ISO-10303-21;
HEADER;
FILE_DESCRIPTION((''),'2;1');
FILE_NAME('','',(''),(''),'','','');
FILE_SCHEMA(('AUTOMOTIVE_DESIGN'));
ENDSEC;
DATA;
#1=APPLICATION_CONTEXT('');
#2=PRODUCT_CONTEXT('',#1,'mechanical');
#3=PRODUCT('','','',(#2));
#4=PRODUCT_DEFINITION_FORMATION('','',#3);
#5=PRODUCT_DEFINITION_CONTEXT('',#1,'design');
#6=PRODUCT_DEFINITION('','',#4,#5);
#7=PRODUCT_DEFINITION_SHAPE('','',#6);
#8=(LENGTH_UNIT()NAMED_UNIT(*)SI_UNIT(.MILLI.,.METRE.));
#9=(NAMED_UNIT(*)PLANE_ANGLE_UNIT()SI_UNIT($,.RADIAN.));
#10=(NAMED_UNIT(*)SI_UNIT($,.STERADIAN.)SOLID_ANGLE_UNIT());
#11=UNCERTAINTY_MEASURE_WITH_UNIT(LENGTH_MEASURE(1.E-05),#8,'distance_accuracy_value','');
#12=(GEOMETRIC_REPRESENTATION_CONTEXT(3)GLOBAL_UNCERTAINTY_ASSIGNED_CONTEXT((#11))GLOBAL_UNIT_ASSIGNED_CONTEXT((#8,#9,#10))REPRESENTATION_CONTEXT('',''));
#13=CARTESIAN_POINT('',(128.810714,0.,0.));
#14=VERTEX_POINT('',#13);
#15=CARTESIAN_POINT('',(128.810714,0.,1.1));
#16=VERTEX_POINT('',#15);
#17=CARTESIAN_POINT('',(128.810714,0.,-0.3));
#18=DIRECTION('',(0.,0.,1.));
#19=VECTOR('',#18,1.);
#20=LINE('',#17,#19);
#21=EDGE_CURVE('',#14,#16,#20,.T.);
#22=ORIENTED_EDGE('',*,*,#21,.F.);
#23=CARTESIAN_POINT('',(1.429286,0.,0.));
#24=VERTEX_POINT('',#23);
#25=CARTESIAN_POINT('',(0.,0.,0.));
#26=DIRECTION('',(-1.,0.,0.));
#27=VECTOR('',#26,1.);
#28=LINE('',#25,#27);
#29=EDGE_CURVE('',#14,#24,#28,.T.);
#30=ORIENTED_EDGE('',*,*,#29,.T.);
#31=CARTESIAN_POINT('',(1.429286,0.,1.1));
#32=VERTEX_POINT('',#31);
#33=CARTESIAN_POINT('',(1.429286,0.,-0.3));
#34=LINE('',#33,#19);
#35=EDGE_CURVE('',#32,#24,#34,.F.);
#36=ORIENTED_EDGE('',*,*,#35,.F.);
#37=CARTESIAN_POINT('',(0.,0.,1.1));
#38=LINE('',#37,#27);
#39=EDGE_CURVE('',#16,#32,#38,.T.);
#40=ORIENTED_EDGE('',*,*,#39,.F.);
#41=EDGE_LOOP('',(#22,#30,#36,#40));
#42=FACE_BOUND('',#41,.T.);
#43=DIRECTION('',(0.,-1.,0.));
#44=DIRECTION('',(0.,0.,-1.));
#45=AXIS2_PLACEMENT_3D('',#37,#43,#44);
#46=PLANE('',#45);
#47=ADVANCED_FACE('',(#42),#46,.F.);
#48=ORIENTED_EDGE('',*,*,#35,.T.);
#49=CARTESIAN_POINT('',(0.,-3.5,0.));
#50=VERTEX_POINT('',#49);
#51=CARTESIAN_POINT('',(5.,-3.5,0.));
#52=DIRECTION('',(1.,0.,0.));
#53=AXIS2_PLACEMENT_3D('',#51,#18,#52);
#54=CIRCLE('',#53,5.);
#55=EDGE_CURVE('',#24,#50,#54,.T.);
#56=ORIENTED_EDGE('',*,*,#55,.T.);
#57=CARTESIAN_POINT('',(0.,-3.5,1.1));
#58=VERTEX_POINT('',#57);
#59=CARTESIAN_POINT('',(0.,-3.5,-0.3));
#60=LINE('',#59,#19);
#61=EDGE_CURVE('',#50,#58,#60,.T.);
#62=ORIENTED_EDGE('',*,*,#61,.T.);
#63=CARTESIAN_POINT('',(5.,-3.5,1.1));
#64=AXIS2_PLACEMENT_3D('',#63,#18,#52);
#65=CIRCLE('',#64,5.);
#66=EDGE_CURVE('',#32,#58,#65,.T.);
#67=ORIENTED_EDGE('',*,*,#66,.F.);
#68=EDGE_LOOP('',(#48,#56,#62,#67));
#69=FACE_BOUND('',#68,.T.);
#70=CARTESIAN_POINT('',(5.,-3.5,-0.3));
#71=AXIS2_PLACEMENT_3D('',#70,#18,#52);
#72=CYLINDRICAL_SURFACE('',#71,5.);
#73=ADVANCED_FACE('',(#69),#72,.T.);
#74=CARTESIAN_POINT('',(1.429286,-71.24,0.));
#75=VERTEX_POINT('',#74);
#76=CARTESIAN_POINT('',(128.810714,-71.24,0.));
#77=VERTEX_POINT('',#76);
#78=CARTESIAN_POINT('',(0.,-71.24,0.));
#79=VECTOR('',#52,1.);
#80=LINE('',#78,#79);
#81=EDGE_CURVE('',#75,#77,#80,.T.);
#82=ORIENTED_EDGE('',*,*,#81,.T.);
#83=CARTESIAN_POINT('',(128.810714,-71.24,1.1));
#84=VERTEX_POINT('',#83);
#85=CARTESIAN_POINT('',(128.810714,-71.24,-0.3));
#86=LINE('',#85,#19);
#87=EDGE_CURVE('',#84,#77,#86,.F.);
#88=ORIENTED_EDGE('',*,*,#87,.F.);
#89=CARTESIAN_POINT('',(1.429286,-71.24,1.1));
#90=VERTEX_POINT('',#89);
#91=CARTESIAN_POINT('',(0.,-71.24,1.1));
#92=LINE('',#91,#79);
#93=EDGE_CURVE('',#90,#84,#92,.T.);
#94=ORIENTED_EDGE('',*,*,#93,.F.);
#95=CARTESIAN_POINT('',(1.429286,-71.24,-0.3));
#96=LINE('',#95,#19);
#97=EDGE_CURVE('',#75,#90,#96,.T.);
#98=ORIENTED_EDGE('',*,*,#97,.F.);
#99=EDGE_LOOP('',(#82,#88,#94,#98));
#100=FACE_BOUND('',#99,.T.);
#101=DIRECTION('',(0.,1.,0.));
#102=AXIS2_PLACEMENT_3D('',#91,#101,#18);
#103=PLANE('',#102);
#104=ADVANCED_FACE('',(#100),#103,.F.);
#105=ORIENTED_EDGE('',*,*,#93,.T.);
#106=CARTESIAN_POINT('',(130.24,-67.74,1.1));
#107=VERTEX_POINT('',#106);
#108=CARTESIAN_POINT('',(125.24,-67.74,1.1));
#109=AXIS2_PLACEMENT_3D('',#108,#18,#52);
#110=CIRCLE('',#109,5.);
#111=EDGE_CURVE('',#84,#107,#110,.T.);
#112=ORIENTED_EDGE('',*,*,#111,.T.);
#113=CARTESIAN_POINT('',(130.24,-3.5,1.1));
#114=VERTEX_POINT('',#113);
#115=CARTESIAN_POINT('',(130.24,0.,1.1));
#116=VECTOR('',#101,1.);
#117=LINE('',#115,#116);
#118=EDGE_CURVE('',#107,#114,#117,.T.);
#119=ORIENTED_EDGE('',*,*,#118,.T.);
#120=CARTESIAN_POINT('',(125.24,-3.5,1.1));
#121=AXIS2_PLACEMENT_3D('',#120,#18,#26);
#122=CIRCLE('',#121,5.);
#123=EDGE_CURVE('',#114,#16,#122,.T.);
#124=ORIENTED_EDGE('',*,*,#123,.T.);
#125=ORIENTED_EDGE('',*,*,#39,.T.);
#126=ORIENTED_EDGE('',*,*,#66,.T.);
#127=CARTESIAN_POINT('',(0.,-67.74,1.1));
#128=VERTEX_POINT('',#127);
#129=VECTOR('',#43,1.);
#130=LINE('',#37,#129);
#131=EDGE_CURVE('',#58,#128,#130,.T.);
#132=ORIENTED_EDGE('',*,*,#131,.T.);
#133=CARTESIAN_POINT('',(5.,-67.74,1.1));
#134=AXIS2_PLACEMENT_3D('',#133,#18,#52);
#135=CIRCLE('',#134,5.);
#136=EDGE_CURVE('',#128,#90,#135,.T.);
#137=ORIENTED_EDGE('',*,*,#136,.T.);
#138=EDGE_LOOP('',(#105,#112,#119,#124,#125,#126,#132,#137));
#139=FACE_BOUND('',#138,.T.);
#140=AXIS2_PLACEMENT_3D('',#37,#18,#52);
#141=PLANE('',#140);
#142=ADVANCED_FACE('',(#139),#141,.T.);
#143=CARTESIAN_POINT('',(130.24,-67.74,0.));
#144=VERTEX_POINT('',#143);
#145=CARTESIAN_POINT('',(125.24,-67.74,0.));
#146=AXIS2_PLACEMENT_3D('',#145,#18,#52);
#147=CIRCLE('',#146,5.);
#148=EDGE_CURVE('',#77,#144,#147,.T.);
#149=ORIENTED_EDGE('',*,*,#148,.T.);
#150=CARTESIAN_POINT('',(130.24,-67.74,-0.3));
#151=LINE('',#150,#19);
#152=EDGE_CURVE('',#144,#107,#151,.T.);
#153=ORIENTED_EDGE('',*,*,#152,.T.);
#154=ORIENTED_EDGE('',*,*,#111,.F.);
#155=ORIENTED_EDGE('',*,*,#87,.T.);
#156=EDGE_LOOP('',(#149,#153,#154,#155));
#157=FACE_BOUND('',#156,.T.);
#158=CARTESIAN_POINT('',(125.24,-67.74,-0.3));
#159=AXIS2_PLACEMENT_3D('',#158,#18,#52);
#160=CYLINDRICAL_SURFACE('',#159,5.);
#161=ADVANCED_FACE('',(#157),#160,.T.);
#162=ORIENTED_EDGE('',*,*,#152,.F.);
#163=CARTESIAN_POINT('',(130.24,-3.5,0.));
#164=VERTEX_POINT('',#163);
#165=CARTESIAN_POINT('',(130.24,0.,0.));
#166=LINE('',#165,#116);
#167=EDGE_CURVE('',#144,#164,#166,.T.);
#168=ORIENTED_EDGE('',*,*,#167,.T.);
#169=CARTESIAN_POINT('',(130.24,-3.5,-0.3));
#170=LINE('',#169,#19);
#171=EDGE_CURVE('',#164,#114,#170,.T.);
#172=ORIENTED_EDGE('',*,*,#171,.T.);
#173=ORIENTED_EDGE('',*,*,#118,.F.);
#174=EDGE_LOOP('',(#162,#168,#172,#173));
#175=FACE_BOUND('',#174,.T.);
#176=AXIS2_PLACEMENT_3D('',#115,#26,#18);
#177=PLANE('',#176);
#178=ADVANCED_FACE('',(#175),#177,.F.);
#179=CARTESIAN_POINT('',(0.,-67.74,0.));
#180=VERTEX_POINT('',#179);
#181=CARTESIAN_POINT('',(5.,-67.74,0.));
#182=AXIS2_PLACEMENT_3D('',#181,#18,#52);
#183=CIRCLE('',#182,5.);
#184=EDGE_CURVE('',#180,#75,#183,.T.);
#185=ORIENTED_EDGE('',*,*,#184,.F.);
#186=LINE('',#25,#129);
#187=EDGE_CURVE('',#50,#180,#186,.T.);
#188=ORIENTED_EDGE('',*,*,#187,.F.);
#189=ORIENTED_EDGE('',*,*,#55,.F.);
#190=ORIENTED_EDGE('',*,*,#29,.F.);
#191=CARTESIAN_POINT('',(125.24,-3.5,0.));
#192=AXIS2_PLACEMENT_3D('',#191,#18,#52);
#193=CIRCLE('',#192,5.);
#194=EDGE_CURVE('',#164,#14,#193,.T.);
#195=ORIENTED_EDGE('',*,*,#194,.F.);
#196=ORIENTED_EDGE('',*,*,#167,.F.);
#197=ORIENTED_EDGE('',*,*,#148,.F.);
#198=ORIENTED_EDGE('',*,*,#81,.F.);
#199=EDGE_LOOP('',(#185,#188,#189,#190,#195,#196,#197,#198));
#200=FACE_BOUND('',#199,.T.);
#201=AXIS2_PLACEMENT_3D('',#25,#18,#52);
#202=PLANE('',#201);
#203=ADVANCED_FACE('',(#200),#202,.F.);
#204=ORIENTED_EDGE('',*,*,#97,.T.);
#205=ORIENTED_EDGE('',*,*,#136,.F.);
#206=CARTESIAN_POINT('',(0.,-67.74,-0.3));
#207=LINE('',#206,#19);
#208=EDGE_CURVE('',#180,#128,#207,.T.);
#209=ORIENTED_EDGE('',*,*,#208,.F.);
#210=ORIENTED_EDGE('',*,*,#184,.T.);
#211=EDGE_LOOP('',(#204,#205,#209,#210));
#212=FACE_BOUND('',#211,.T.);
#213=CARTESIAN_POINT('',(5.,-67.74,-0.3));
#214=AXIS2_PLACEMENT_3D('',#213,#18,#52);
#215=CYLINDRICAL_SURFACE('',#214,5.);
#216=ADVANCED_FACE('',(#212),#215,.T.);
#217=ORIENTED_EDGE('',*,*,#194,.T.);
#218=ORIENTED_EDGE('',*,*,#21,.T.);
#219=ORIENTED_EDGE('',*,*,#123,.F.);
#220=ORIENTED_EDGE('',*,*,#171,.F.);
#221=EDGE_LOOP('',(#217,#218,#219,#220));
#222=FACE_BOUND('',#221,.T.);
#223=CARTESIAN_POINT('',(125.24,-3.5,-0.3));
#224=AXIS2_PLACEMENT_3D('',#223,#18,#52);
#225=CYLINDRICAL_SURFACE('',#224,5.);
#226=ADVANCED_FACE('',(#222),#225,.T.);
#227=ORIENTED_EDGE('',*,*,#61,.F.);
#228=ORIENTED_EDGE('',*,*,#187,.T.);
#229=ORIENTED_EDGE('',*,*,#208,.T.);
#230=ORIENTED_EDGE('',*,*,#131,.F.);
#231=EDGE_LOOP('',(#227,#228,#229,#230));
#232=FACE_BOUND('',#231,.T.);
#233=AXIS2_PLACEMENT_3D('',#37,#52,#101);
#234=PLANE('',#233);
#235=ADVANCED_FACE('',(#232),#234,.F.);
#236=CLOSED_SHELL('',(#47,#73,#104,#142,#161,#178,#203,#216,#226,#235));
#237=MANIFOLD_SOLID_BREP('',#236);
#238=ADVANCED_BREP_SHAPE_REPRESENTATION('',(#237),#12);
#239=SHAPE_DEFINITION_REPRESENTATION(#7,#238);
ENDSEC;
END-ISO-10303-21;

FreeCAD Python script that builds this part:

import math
import FreeCAD as App
import Part
import Sketcher

V = App.Vector
Q = App.Units.Quantity


def add_polygon(sketch, points):
    """Adds a closed chain of lines whose ends are joined by coincident constraints."""
    first, n = sketch.GeometryCount, len(points)
    for a, b in zip(points, points[1:] + points[:1]):
        sketch.addGeometry(Part.LineSegment(App.Vector(*a, 0), App.Vector(*b, 0)), False)
    for i in range(n):
        sketch.addConstraint(Sketcher.Constraint("Coincident", first + i, 2, first + (i + 1) % n, 1))

doc = App.newDocument("Part")
body = doc.addObject("PartDesign::Body", "Body")

# Sketch on XY plane
sketch1 = body.newObject("Sketcher::SketchObject", "Sketch")
sketch1.AttachmentSupport = (doc.getObject("XY_Plane"), [""])
sketch1.MapMode = "FlatFace"
add_polygon(sketch1, [(0, 0), (0, -71), (130, -71), (130, 0)])  # lines 0-3
sketch1.addConstraint([
    Sketcher.Constraint("Vertical", 0),
    Sketcher.Constraint("Horizontal", 1),
    Sketcher.Constraint("Vertical", 2),
    Sketcher.Constraint("Horizontal", 3),
    Sketcher.Constraint("Coincident", 3, 2, -1, 1),
    Sketcher.Constraint("DistanceX", 1, 1, 1, 2, Q("130.24 mm")),
    Sketcher.Constraint("DistanceY", 0, 2, 0, 1, Q("71.24 mm")),
])
pad1 = body.newObject("PartDesign::Pad", "Pad")
pad1.Profile = sketch1
pad1.Length = 1.1

# Sketch on XY plane
sketch2 = body.newObject("Sketcher::SketchObject", "Sketch001")
sketch2.AttachmentSupport = (doc.getObject("XY_Plane"), [""])
sketch2.MapMode = "FlatFace"
sketch2.AttachmentOffset = App.Placement(V(0, 0, 1.1), App.Rotation())
add_polygon(sketch2, [(-6, 7), (-6, -76), (134, -76), (134, 7)])  # lines 0-3
sketch2.addGeometry(Part.ArcOfCircle(Part.Circle(V(5, -4, 0), V(0, 0, 1), 5), math.radians(90), math.radians(180)), False)  # 4
sketch2.addGeometry(Part.LineSegment(V(5, 2, 0), V(125, 2, 0)), False)  # 5
sketch2.addGeometry(Part.ArcOfCircle(Part.Circle(V(125, -4, 0), V(0, 0, 1), 5), math.radians(0), math.radians(90)), False)  # 6
sketch2.addGeometry(Part.LineSegment(V(130, -4, 0), V(130, -68, 0)), False)  # 7
sketch2.addGeometry(Part.ArcOfCircle(Part.Circle(V(125, -68, 0), V(0, 0, 1), 5), math.radians(-90), math.radians(0)), False)  # 8
sketch2.addGeometry(Part.LineSegment(V(125, -73, 0), V(5, -73, 0)), False)  # 9
sketch2.addGeometry(Part.ArcOfCircle(Part.Circle(V(5, -68, 0), V(0, 0, 1), 5), math.radians(180), math.radians(270)), False)  # 10
sketch2.addGeometry(Part.LineSegment(V(0, -68, 0), V(0, -4, 0)), False)  # 11
sketch2.addConstraint([
    Sketcher.Constraint("Tangent", 4, 1, 5, 1),
    Sketcher.Constraint("Tangent", 5, 2, 6, 2),
    Sketcher.Constraint("Tangent", 6, 1, 7, 1),
    Sketcher.Constraint("Tangent", 7, 2, 8, 2),
    Sketcher.Constraint("Tangent", 8, 1, 9, 1),
    Sketcher.Constraint("Tangent", 9, 2, 10, 2),
    Sketcher.Constraint("Tangent", 10, 1, 11, 1),
    Sketcher.Constraint("Tangent", 11, 2, 4, 2),
    Sketcher.Constraint("Vertical", 0),
    Sketcher.Constraint("Horizontal", 1),
    Sketcher.Constraint("Vertical", 2),
    Sketcher.Constraint("Horizontal", 3),
    Sketcher.Constraint("Horizontal", 5),
    Sketcher.Constraint("Vertical", 7),
    Sketcher.Constraint("Horizontal", 9),
    Sketcher.Constraint("Vertical", 11),
    Sketcher.Constraint("Equal", 4, 6),
    Sketcher.Constraint("Equal", 6, 8),
    Sketcher.Constraint("Equal", 8, 10),
    Sketcher.Constraint("PointOnObject", 10, 1, -2),
    Sketcher.Constraint("Radius", 4, Q("5 mm")),
    Sketcher.Constraint("DistanceX", 5, 1, 5, 2, Q("120.24 mm")),
    Sketcher.Constraint("DistanceY", 7, 2, 7, 1, Q("64.24 mm")),
    Sketcher.Constraint("DistanceY", 4, 3, -1, 1, Q("3.5 mm")),
    Sketcher.Constraint("DistanceY", 0, 2, 0, 1, Q("82.895369 mm")),
    Sketcher.Constraint("DistanceX", 1, 1, 1, 2, Q("139.816856 mm")),
    Sketcher.Constraint("DistanceX", 0, 2, -1, 1, Q("6.23073 mm")),
    Sketcher.Constraint("DistanceY", 0, 2, -1, 1, Q("75.639128 mm")),
])
pocket1 = body.newObject("PartDesign::Pocket", "Pocket")
pocket1.Profile = sketch2
pocket1.Length = 1.4

doc.recompute()
